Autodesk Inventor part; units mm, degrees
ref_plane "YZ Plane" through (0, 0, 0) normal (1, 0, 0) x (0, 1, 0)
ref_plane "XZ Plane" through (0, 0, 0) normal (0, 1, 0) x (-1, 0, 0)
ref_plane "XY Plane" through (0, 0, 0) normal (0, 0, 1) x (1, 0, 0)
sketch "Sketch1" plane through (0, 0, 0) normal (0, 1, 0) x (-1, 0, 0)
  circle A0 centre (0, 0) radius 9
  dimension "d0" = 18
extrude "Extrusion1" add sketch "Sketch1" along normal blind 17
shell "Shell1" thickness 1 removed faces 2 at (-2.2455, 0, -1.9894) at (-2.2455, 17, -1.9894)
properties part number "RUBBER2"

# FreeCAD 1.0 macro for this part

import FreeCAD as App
import Part
import Sketcher

V = App.Vector
Q = App.Units.Quantity


def faces_at(feature, points):
    """Names of the faces that lie closest to the given points."""
    faces = feature.Shape.Faces
    near = lambda p: min(range(len(faces)), key=lambda i: faces[i].distToShape(Part.Vertex(*p))[0])
    return sorted({f"Face{near(p) + 1}" for p in points})

doc = App.newDocument("Part")
body = doc.addObject("PartDesign::Body", "Body")

sketch1 = body.newObject("Sketcher::SketchObject", "Sketch")
sketch1.AttachmentSupport = (doc.getObject("XZ_Plane"), [""])
sketch1.MapMode = "FlatFace"
sketch1.addGeometry(Part.Circle(V(0, 0, 0), V(0, 0, 1), 9), False)
sketch1.addConstraint([
    Sketcher.Constraint("Coincident", 0, 3, -1, 1),
    Sketcher.Constraint("Diameter", 0, Q("18 mm")),
])
pad1 = body.newObject("PartDesign::Pad", "Pad")
pad1.Profile = sketch1
pad1.Length = 17
pad1.Reversed = True
doc.recompute()

thickness = body.newObject("PartDesign::Thickness", "Thickness")
thickness.Base = (pad1, faces_at(pad1, [(-2.245, 0, -1.989), (-2.245, 17, -1.989)]))
thickness.Value = 1
thickness.Reversed = True
thickness.Join = "Intersection"

doc.recompute()
